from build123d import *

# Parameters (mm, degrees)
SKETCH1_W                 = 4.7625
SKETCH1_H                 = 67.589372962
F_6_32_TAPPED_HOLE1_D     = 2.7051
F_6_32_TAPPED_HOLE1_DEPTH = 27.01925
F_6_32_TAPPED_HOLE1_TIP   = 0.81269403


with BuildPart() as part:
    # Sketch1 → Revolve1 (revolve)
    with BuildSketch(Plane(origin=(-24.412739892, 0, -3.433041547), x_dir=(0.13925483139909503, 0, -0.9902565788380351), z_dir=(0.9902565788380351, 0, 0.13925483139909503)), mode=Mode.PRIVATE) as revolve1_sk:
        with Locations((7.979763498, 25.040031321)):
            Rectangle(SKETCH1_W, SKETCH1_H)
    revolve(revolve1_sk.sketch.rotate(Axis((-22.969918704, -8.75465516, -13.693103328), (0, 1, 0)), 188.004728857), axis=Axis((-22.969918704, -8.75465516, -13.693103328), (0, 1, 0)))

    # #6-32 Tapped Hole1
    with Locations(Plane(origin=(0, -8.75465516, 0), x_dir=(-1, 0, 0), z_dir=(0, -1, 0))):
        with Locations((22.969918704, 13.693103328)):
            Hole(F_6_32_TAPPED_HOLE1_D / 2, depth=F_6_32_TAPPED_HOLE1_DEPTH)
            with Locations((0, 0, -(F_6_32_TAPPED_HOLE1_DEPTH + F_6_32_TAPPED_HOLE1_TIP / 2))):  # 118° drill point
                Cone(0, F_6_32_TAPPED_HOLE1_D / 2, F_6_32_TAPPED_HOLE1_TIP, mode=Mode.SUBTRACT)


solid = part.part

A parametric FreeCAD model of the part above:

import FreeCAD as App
import Part
import Sketcher
from FreeCAD import Vector
Q = App.Units.Quantity

doc = App.newDocument("Part")
body = doc.addObject("PartDesign::Body", "Body")

# Sketch on an angled plane
sketch1 = body.newObject("Sketcher::SketchObject", "Sketch")
sketch1.Placement = App.Placement(Vector(-24.41274, 0, -3.433042), App.Rotation(Vector(0.139254831, 0, -0.990256579), Vector(0, 1, 0), Vector(0.990256579, 0, 0.139254831), "ZXY"))
sketch1.addGeometry(Part.LineSegment(Vector(5.6, 58.8, 0), Vector(5.6, -8.8, 0)), False)
sketch1.addGeometry(Part.LineSegment(Vector(5.6, -8.8, 0), Vector(10.4, -8.8, 0)), False)
sketch1.addGeometry(Part.LineSegment(Vector(10.4, -8.8, 0), Vector(10.4, 58.8, 0)), False)
sketch1.addGeometry(Part.LineSegment(Vector(10.4, 58.8, 0), Vector(5.6, 58.8, 0)), False)
sketch1.addGeometry(Part.LineSegment(Vector(10.4, -8.8, 0), Vector(10.4, 58.8, 0)), True)  # axis
sketch1.addConstraint(Sketcher.Constraint("Coincident", 0, 2, 1, 1))
sketch1.addConstraint(Sketcher.Constraint("Coincident", 1, 2, 2, 1))
sketch1.addConstraint(Sketcher.Constraint("Coincident", 2, 2, 3, 1))
sketch1.addConstraint(Sketcher.Constraint("Coincident", 3, 2, 0, 1))
sketch1.addConstraint(Sketcher.Constraint("Vertical", 0))
sketch1.addConstraint(Sketcher.Constraint("Horizontal", 1))
sketch1.addConstraint(Sketcher.Constraint("Vertical", 2))
sketch1.addConstraint(Sketcher.Constraint("Horizontal", 3))
sketch1.addConstraint(Sketcher.Constraint("Vertical", 4))
sketch1.addConstraint(Sketcher.Constraint("Coincident", 4, 1, 1, 2))
sketch1.addConstraint(Sketcher.Constraint("Horizontal", 3, 2, 4, 2))
sketch1.addConstraint(Sketcher.Constraint("DistanceX", 1, 1, 1, 2, Q("0.1875 in")))
sketch1.addConstraint(Sketcher.Constraint("DistanceY", 0, 2, 0, 1, 67.589373))
sketch1.addConstraint(Sketcher.Constraint("DistanceX", -1, 1, 0, 2, 5.598513))
sketch1.addConstraint(Sketcher.Constraint("DistanceY", 0, 2, -1, 1, 8.754655))
revolution = body.newObject("PartDesign::Revolution", "Revolution")
revolution.Profile = sketch1
revolution.ReferenceAxis = (sketch1, ["Axis0"])
revolution.Angle = 360

# Sketch on XZ plane
sketch2 = body.newObject("Sketcher::SketchObject", "Sketch001")
sketch2.AttachmentSupport = (doc.getObject("XZ_Plane"), [""])
sketch2.MapMode = "FlatFace"
sketch2.AttachmentOffset = App.Placement(Vector(0, 0, 8.754655), App.Rotation())
sketch2.addGeometry(Part.Circle(Vector(-23, -13.7, 0), Vector(0, 0, 1), 1.4), False)
sketch2.addConstraint(Sketcher.Constraint("Diameter", 0, Q("0.1065 in")))
sketch2.addConstraint(Sketcher.Constraint("DistanceX", 0, 3, -1, 1, 22.969919))
sketch2.addConstraint(Sketcher.Constraint("DistanceY", 0, 3, -1, 1, 13.693103))
doc.recompute()
hole = body.newObject("PartDesign::Hole", "Hole")
hole.Profile = sketch2
hole.ThreadType = "None"
hole.Diameter = Q("0.1065 in")
hole.DepthType = "Dimension"
hole.Depth = 27.01925
hole.DrillPoint = "Angled"
hole.DrillPointAngle = 118

doc.recompute()
